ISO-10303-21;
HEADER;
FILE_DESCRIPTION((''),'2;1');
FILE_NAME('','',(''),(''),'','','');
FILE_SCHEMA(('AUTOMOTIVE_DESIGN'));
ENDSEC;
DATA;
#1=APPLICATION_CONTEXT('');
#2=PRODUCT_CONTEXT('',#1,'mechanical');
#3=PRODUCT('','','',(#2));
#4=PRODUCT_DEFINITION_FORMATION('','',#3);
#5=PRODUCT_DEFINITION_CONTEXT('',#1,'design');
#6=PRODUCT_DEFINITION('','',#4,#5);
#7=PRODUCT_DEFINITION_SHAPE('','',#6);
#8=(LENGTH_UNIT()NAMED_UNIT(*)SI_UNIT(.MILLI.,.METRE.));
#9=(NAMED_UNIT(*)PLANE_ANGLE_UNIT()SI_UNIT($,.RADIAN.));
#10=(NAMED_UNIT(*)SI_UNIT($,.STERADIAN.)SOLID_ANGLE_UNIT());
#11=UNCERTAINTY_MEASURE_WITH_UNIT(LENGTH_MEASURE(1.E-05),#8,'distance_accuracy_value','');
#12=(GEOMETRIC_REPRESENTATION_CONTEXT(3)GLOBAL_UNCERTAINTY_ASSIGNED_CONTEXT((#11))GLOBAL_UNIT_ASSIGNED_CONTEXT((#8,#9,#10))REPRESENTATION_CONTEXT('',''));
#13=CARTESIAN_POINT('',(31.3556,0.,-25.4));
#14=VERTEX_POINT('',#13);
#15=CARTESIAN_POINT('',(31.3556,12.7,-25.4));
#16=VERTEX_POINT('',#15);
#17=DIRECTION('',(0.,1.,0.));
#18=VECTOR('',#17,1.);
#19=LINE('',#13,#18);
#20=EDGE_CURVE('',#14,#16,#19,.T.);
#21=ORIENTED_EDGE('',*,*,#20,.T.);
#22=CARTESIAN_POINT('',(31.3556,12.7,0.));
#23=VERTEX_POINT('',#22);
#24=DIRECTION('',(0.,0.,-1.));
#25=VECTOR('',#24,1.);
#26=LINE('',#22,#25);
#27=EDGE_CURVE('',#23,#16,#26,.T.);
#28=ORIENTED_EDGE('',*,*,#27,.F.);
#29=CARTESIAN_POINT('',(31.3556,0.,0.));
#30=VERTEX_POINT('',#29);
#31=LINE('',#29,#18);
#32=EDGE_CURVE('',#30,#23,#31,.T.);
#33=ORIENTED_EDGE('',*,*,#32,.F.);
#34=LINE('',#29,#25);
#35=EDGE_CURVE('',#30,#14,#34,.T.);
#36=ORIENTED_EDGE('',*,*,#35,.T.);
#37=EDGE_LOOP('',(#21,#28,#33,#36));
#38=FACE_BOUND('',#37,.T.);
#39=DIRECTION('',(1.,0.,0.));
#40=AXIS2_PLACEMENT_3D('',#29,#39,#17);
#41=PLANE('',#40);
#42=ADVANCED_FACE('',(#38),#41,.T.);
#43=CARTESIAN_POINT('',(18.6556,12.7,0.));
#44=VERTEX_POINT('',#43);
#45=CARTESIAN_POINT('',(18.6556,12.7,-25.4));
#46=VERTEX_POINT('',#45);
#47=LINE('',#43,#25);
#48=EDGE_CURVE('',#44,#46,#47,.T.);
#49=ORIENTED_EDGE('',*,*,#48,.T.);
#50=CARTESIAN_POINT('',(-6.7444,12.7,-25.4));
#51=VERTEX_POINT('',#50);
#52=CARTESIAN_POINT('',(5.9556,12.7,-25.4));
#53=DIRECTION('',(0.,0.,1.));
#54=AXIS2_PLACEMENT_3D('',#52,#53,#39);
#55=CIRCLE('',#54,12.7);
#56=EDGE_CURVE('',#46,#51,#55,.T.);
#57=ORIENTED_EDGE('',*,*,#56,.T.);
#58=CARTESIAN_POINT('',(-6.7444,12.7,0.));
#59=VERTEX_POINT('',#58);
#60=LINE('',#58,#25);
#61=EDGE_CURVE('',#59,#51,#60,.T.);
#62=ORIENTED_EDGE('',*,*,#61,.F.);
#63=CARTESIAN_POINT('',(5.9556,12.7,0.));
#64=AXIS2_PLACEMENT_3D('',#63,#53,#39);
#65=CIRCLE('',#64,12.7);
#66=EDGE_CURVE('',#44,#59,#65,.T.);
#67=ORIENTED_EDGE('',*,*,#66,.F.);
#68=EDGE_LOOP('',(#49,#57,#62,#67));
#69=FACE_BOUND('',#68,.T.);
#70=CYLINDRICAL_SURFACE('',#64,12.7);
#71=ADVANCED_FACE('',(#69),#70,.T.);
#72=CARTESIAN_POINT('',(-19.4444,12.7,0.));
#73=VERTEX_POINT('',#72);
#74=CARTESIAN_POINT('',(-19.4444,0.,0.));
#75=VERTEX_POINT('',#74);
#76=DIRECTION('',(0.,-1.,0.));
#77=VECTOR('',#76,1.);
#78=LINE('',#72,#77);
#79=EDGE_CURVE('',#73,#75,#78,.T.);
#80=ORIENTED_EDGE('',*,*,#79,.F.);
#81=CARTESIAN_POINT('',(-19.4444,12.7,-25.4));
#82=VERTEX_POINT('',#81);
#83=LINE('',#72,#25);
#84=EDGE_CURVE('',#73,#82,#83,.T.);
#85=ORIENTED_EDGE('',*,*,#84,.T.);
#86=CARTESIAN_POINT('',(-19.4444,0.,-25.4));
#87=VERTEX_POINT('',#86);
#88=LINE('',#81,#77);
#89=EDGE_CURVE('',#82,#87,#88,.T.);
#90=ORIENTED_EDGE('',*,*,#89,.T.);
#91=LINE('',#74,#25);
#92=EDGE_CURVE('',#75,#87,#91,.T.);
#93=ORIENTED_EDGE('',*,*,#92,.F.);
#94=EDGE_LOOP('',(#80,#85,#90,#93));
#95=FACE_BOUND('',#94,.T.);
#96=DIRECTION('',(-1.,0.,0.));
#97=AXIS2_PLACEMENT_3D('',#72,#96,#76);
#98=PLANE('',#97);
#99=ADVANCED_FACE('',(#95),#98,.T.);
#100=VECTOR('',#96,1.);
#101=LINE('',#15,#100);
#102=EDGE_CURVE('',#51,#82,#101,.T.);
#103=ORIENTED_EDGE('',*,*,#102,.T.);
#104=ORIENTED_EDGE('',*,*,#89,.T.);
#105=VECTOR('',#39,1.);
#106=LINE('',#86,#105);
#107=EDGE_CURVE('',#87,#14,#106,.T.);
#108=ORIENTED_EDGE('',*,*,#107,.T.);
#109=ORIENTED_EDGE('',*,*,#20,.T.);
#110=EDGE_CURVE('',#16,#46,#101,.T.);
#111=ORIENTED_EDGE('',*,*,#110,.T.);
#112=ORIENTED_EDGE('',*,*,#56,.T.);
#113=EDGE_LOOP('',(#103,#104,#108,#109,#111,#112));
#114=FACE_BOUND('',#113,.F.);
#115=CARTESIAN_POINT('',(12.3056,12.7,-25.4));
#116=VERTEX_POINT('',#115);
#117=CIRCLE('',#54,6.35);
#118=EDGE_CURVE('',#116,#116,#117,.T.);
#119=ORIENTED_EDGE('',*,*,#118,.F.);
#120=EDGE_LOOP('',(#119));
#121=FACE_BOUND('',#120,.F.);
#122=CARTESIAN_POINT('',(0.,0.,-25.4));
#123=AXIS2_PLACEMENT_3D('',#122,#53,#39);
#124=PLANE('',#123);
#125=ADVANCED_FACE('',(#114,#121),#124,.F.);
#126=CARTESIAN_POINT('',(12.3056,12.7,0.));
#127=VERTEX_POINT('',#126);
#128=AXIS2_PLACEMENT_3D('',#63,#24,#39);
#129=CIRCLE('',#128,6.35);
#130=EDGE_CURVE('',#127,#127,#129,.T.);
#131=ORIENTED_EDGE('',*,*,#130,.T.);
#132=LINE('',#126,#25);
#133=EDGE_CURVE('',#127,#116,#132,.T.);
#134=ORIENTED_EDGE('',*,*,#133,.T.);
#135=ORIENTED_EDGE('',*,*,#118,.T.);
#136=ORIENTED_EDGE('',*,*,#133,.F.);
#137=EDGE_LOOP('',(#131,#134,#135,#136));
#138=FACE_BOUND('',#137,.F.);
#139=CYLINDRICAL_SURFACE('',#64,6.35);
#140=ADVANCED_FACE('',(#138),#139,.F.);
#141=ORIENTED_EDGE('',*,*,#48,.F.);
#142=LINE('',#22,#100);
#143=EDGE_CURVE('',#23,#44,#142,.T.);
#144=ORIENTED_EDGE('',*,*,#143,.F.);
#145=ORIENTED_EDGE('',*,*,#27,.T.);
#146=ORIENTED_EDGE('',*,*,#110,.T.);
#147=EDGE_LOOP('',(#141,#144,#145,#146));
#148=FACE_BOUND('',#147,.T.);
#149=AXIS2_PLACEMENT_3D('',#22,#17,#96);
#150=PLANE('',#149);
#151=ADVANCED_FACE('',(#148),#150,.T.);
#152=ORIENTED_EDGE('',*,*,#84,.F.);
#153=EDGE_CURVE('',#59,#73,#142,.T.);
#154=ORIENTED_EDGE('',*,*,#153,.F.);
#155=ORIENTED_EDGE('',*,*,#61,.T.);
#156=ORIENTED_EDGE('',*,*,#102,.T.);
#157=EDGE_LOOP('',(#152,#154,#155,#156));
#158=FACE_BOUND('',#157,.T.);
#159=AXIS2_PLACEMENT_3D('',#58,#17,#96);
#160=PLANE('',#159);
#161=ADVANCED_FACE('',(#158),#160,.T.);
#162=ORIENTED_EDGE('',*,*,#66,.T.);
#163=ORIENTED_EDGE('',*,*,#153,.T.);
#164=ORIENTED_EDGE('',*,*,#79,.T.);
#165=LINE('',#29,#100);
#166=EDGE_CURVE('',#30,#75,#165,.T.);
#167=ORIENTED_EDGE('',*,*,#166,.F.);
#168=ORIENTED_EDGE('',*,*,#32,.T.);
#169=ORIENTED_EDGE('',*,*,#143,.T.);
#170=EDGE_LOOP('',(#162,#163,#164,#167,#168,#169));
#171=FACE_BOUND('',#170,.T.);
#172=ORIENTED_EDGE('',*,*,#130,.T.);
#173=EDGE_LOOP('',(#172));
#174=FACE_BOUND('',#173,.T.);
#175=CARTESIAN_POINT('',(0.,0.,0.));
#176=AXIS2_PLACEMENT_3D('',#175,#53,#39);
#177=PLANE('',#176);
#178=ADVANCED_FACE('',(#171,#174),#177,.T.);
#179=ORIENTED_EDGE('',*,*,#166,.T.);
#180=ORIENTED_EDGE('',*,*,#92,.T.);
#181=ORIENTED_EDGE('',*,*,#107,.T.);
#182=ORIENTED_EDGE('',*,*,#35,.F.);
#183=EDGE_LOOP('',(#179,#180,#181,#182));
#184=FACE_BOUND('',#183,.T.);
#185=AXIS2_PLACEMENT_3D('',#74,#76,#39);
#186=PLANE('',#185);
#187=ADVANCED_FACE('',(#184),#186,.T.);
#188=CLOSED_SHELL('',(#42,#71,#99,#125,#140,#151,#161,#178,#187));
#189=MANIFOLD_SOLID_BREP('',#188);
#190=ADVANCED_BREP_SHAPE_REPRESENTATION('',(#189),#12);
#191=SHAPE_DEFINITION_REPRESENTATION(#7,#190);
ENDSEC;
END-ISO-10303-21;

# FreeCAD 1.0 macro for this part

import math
import FreeCAD as App
import Part
import Sketcher
from FreeCAD import Vector
Q = App.Units.Quantity

doc = App.newDocument("Part")
body = doc.addObject("PartDesign::Body", "Body")

sketch1 = body.newObject("Sketcher::SketchObject", "Sketch")
sketch1.AttachmentSupport = (doc.getObject("XY_Plane"), [""])
sketch1.MapMode = "FlatFace"
sketch1.addGeometry(Part.LineSegment(Vector(-19, 13, 0), Vector(-19, 0, 0)), False)
sketch1.addGeometry(Part.LineSegment(Vector(-19, 0, 0), Vector(31, 0, 0)), False)
sketch1.addGeometry(Part.LineSegment(Vector(31, 0, 0), Vector(31, 13, 0)), False)
sketch1.addGeometry(Part.LineSegment(Vector(31, 13, 0), Vector(19, 13, 0)), False)
sketch1.addGeometry(Part.ArcOfCircle(Part.Circle(Vector(6, 13, 0), Vector(0, 0, 1), 13), math.radians(0), math.radians(180)), False)
sketch1.addGeometry(Part.LineSegment(Vector(-7, 13, 0), Vector(-19, 13, 0)), False)
sketch1.addGeometry(Part.ArcOfCircle(Part.Circle(Vector(6, 13, 0), Vector(0, 0, 1), 6), math.radians(0), math.radians(180)), False)
sketch1.addGeometry(Part.LineSegment(Vector(12, 13, 0), Vector(0, 13, 0)), False)
sketch1.addConstraint(Sketcher.Constraint("Coincident", 0, 2, 1, 1))
sketch1.addConstraint(Sketcher.Constraint("Coincident", 1, 2, 2, 1))
sketch1.addConstraint(Sketcher.Constraint("Coincident", 2, 2, 3, 1))
sketch1.addConstraint(Sketcher.Constraint("Coincident", 3, 2, 4, 1))
sketch1.addConstraint(Sketcher.Constraint("Coincident", 4, 2, 5, 1))
sketch1.addConstraint(Sketcher.Constraint("Coincident", 5, 2, 0, 1))
sketch1.addConstraint(Sketcher.Constraint("Coincident", 6, 1, 7, 1))
sketch1.addConstraint(Sketcher.Constraint("Coincident", 7, 2, 6, 2))
sketch1.addConstraint(Sketcher.Constraint("Vertical", 0))
sketch1.addConstraint(Sketcher.Constraint("Horizontal", 1))
sketch1.addConstraint(Sketcher.Constraint("Vertical", 2))
sketch1.addConstraint(Sketcher.Constraint("Horizontal", 3))
sketch1.addConstraint(Sketcher.Constraint("Horizontal", 5))
sketch1.addConstraint(Sketcher.Constraint("Horizontal", 7))
sketch1.addConstraint(Sketcher.Constraint("Coincident", 6, 3, 4, 3))
sketch1.addConstraint(Sketcher.Constraint("PointOnObject", 0, 2, -1))
sketch1.addConstraint(Sketcher.Constraint("Horizontal", 6, 3, 2, 2))
sketch1.addConstraint(Sketcher.Constraint("Horizontal", 3, 2, 4, 2))
sketch1.addConstraint(Sketcher.Constraint("Horizontal", 5, 2, 6, 1))
sketch1.addConstraint(Sketcher.Constraint("Equal", 3, 5))
sketch1.addConstraint(Sketcher.Constraint("Equal", 5, 7))
sketch1.addConstraint(Sketcher.Constraint("Equal", 7, 0))
sketch1.addConstraint(Sketcher.Constraint("Radius", 4, Q("0.5 in")))
sketch1.addConstraint(Sketcher.Constraint("DistanceX", 1, 1, 1, 2, Q("2 in")))
sketch1.addConstraint(Sketcher.Constraint("DistanceX", -1, 1, 4, 3, Q("5.9556 mm")))
pad1 = body.newObject("PartDesign::Pad", "Pad")
pad1.Profile = sketch1
pad1.Length = Q("1 in")
pad1.Reversed = True

sketch2 = body.newObject("Sketcher::SketchObject", "Sketch001")
sketch2.AttachmentSupport = (doc.getObject("XY_Plane"), [""])
sketch2.MapMode = "FlatFace"
sketch2.addGeometry(Part.Circle(Vector(6, 13, 0), Vector(0, 0, 1), 6), False)
sketch2.addConstraint(Sketcher.Constraint("Diameter", 0, Q("0.5 in")))
sketch2.addConstraint(Sketcher.Constraint("DistanceY", -1, 1, 0, 3, Q("0.5 in")))
sketch2.addConstraint(Sketcher.Constraint("DistanceX", -1, 1, 0, 3, Q("5.9556 mm")))
pocket1 = body.newObject("PartDesign::Pocket", "Pocket")
pocket1.Profile = sketch2
pocket1.Length = Q("1 in")

doc.recompute()
